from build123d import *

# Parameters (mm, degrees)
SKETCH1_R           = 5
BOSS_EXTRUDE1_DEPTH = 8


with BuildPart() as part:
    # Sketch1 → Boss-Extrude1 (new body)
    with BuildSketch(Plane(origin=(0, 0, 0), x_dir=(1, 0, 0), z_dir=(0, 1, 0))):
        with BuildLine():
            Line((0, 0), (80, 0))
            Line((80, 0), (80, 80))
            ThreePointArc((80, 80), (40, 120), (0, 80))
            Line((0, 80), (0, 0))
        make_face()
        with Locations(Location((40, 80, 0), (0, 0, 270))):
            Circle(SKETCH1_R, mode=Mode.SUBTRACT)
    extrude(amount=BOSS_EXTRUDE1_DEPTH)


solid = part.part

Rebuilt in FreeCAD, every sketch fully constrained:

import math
import FreeCAD as App
import Part
import Sketcher

V = App.Vector

doc = App.newDocument("Part")
body = doc.addObject("PartDesign::Body", "Body")

# Sketch on XZ plane
sketch1 = body.newObject("Sketcher::SketchObject", "Sketch")
sketch1.AttachmentSupport = (doc.getObject("XZ_Plane"), [""])
sketch1.MapMode = "FlatFace"
sketch1.addGeometry([
    Part.LineSegment(V(0, 0, 0), V(80, 0, 0)),  # 0
    Part.LineSegment(V(80, 0, 0), V(80, -80, 0)),  # 1
    Part.ArcOfCircle(Part.Circle(V(40, -80, 0), V(0, 0, 1), 40), math.radians(180), math.radians(360)),  # 2
    Part.LineSegment(V(0, -80, 0), V(0, 0, 0)),  # 3
    Part.Circle(V(40, -80, 0), V(0, 0, 1), 5),  # 4
], False)
sketch1.addConstraint([
    Sketcher.Constraint("Coincident", 0, 2, 1, 1),
    Sketcher.Constraint("Tangent", 1, 2, 2, 2),
    Sketcher.Constraint("Tangent", 2, 1, 3, 1),
    Sketcher.Constraint("Coincident", 3, 2, 0, 1),
    Sketcher.Constraint("Horizontal", 0),
    Sketcher.Constraint("Vertical", 1),
    Sketcher.Constraint("Vertical", 3),
    Sketcher.Constraint("Coincident", 3, 2, -1, 1),
    Sketcher.Constraint("Coincident", 4, 3, 2, 3),
    Sketcher.Constraint("Equal", 0, 1),
    Sketcher.Constraint("Diameter", 4, 10.0),
    Sketcher.Constraint("Radius", 2, 40.0),
])
pad1 = body.newObject("PartDesign::Pad", "Pad")
pad1.Profile = sketch1
pad1.Length = 8
pad1.Reversed = True

doc.recompute()
